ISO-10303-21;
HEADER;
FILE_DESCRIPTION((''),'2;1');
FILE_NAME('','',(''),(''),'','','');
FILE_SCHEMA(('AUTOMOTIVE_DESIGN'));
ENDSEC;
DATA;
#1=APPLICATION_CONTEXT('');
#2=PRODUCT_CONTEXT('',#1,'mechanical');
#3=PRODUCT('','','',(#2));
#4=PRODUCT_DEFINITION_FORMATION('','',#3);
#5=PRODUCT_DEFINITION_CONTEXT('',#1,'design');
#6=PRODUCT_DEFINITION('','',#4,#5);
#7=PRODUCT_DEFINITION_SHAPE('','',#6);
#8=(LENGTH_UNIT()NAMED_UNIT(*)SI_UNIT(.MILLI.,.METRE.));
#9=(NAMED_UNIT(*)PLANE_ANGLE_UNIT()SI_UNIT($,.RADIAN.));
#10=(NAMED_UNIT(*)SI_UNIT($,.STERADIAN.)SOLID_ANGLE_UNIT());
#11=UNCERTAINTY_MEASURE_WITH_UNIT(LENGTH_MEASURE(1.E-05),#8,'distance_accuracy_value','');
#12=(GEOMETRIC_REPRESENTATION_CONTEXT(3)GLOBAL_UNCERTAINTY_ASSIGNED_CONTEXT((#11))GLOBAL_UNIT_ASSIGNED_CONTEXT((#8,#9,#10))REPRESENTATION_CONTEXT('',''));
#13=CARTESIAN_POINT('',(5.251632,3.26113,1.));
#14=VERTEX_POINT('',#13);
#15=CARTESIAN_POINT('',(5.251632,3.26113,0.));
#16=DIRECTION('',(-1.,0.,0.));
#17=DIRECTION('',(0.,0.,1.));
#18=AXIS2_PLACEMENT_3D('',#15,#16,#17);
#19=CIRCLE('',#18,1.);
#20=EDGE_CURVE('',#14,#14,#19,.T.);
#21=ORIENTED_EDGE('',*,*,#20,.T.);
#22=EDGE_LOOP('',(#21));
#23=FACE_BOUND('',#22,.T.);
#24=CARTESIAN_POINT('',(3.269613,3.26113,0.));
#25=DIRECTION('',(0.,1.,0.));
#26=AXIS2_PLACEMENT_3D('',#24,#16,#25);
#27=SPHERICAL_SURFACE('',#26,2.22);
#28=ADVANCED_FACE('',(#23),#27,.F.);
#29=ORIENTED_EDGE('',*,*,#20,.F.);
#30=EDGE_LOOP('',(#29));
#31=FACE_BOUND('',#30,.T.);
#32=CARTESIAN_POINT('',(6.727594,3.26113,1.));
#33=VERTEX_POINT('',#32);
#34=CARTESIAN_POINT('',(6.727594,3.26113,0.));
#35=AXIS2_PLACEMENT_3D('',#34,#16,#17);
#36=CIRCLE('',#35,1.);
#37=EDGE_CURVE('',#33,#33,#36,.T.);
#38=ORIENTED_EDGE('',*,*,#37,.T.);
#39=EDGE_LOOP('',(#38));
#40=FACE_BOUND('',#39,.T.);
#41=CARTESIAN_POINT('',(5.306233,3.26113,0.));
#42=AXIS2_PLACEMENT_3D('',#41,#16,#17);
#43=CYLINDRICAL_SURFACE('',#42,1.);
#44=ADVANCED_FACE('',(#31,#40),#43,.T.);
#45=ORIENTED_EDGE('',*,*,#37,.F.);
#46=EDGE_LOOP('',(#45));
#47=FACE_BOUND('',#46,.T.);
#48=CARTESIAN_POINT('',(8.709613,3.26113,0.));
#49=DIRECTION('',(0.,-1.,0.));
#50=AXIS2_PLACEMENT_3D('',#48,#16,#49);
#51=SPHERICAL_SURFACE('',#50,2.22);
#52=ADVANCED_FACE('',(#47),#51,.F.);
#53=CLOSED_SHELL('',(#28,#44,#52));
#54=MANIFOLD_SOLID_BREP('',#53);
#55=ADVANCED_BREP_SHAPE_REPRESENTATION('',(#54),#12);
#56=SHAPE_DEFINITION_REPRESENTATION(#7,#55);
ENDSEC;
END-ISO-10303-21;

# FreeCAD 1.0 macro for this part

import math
import FreeCAD as App
import Part
import Sketcher
from FreeCAD import Vector

doc = App.newDocument("Part")
body = doc.addObject("PartDesign::Body", "Body")

# Sketch on XY plane
sketch1 = doc.addObject("Sketcher::SketchObject", "Sketch")
body.addObject(sketch1)
sketch1.AttachmentSupport = (doc.XY_Plane, [""])
sketch1.MapMode = "FlatFace"
sketch1.addGeometry(Part.LineSegment(Vector(5.5, 3.3, 0), Vector(6.5, 3.3, 0)), False)
sketch1.addGeometry(Part.ArcOfCircle(Part.Circle(Vector(8.7, 3.3, 0), Vector(0, 0, 1), 2.2), math.radians(153), math.radians(180)), False)
sketch1.addGeometry(Part.LineSegment(Vector(6.7, 4.3, 0), Vector(5.3, 4.3, 0)), False)
sketch1.addGeometry(Part.ArcOfCircle(Part.Circle(Vector(3.3, 3.3, 0), Vector(0, 0, 1), 2.2), math.radians(0), math.radians(27)), False)
sketch1.addGeometry(Part.LineSegment(Vector(3.3, 3.3, 0), Vector(8.7, 3.3, 0)), True)  # axis
sketch1.addConstraint(Sketcher.Constraint("Coincident", 0, 2, 1, 2))
sketch1.addConstraint(Sketcher.Constraint("Coincident", 1, 1, 2, 1))
sketch1.addConstraint(Sketcher.Constraint("Coincident", 2, 2, 3, 2))
sketch1.addConstraint(Sketcher.Constraint("Coincident", 3, 1, 0, 1))
sketch1.addConstraint(Sketcher.Constraint("Horizontal", 0))
sketch1.addConstraint(Sketcher.Constraint("Horizontal", 2))
sketch1.addConstraint(Sketcher.Constraint("Horizontal", 4))
sketch1.addConstraint(Sketcher.Constraint("Coincident", 4, 1, 3, 3))
sketch1.addConstraint(Sketcher.Constraint("Coincident", 4, 2, 1, 3))
sketch1.addConstraint(Sketcher.Constraint("Equal", 1, 3))
sketch1.addConstraint(Sketcher.Constraint("Horizontal", 3, 3, 0, 2))
sketch1.addConstraint(Sketcher.Constraint("DistanceX", 0, 1, 0, 2, 1.0))
sketch1.addConstraint(Sketcher.Constraint("Radius", 1, 2.22))
sketch1.addConstraint(Sketcher.Constraint("DistanceY", 0, 2, 1, 1, 1.0))
sketch1.addConstraint(Sketcher.Constraint("DistanceY", -1, 1, 1, 3, 3.26113))
sketch1.addConstraint(Sketcher.Constraint("DistanceX", -1, 1, 1, 3, 8.709613))
revolution = doc.addObject("PartDesign::Revolution", "Revolution")
body.addObject(revolution)
revolution.Profile = sketch1
revolution.ReferenceAxis = (sketch1, ["Axis0"])
revolution.Angle = 360

doc.recompute()
